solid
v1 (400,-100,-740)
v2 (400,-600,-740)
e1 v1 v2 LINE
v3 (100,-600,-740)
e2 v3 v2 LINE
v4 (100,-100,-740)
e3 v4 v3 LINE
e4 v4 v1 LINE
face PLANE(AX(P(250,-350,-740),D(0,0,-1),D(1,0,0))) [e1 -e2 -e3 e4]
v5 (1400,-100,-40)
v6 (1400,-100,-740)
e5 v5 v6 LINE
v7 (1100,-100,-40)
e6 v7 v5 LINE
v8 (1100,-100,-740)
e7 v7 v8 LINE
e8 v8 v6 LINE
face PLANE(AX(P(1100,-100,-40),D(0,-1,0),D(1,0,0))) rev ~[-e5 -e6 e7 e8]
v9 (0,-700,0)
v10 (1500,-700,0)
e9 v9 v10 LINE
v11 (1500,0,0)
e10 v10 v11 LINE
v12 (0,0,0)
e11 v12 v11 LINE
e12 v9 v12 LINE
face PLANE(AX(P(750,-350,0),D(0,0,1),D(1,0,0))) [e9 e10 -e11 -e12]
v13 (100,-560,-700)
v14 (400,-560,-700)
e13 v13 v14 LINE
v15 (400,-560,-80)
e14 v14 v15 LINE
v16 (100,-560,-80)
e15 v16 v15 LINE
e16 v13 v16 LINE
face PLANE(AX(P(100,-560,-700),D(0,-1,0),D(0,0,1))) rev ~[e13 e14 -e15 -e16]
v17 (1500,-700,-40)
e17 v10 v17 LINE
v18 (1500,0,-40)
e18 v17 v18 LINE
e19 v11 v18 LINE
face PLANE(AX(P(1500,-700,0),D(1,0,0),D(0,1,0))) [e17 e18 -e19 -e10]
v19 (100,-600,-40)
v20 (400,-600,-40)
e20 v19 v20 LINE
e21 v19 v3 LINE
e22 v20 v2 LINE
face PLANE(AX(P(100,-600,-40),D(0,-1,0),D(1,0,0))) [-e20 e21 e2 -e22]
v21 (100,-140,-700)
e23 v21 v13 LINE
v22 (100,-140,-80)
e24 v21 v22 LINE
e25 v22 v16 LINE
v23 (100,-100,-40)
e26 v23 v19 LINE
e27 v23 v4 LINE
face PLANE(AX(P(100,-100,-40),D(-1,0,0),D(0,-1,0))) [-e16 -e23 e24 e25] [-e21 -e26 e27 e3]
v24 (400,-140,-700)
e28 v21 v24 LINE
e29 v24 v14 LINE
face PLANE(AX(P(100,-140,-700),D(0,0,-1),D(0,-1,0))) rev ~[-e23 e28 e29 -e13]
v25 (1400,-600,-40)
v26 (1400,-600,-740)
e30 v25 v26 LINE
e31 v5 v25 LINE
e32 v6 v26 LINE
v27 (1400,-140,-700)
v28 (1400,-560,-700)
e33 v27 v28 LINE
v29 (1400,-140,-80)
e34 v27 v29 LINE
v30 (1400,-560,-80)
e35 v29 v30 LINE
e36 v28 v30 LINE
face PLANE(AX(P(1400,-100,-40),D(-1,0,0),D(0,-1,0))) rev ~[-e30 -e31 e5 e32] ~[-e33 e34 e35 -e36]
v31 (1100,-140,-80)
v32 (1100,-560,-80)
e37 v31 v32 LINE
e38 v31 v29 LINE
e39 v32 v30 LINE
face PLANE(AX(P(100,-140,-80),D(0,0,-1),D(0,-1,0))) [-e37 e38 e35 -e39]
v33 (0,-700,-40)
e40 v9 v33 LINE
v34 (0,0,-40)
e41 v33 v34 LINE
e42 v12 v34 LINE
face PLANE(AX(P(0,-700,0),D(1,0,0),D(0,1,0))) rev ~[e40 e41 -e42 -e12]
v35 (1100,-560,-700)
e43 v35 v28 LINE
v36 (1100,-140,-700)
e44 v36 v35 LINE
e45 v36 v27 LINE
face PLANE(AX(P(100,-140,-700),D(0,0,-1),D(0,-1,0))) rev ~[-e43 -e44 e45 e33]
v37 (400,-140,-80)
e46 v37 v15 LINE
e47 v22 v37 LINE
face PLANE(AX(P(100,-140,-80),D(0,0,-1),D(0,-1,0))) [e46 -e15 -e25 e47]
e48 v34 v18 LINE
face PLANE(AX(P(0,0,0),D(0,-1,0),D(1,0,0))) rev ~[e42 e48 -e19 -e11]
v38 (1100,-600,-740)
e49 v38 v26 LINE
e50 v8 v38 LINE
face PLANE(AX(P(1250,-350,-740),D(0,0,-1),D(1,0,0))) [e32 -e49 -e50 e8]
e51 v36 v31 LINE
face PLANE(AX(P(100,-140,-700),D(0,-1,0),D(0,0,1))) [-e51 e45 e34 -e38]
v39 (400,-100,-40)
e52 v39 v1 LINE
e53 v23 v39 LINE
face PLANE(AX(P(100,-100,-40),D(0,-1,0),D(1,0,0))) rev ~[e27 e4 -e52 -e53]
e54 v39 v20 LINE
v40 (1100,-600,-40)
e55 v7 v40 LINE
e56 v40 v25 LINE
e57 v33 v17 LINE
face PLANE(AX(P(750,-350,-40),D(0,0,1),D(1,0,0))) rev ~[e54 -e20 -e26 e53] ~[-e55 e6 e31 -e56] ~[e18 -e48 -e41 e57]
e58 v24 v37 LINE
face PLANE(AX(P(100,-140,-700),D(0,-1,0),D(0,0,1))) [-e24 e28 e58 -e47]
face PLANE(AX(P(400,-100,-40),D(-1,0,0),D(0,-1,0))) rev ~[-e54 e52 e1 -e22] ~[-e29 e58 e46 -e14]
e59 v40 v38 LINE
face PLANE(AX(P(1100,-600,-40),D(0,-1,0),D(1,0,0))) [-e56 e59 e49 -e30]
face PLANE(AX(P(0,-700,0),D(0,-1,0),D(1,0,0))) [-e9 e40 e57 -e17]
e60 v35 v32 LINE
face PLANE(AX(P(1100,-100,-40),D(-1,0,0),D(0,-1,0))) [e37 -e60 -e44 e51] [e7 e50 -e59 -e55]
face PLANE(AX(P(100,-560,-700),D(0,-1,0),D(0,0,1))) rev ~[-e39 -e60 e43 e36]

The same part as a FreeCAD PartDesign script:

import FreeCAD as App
import Part
import Sketcher

V = App.Vector

doc = App.newDocument("Part")
params = doc.addObject("Spreadsheet::Sheet", "Params")
for row, (alias, value) in enumerate([
    ("sketch1_width", "1500 mm"),
    ("sketch1_height", "700 mm"),
    ("pad1_length", "40 mm"),
    ("sketch2_width", "300 mm"),
    ("sketch2_height", "500 mm"),
    ("pad2_length", "700 mm"),
    ("sketch3_width", "420 mm"),
    ("sketch3_height", "620 mm"),
    ("pocket1_length", "1328 mm"),
], start=1):
    params.set(f"A{row}", alias)
    params.set(f"B{row}", "=" + value)
    params.setAlias(f"B{row}", alias)

body = doc.addObject("PartDesign::Body", "Body")

# Sketch on XY plane
sketch1 = doc.addObject("Sketcher::SketchObject", "Sketch")
body.addObject(sketch1)
sketch1.AttachmentSupport = (doc.XY_Plane, [""])
sketch1.MapMode = "FlatFace"
sketch1.addGeometry(Part.LineSegment(V(0, 0, 0), V(0, -700, 0)), False)
sketch1.addGeometry(Part.LineSegment(V(0, -700, 0), V(1500, -700, 0)), False)
sketch1.addGeometry(Part.LineSegment(V(1500, -700, 0), V(1500, 0, 0)), False)
sketch1.addGeometry(Part.LineSegment(V(1500, 0, 0), V(0, 0, 0)), False)
sketch1.addConstraint(Sketcher.Constraint("Coincident", 0, 2, 1, 1))
sketch1.addConstraint(Sketcher.Constraint("Coincident", 1, 2, 2, 1))
sketch1.addConstraint(Sketcher.Constraint("Coincident", 2, 2, 3, 1))
sketch1.addConstraint(Sketcher.Constraint("Coincident", 3, 2, 0, 1))
sketch1.addConstraint(Sketcher.Constraint("Vertical", 0))
sketch1.addConstraint(Sketcher.Constraint("Horizontal", 1))
sketch1.addConstraint(Sketcher.Constraint("Vertical", 2))
sketch1.addConstraint(Sketcher.Constraint("Horizontal", 3))
sketch1.addConstraint(Sketcher.Constraint("Coincident", 3, 2, -1, 1))
sketch1.addConstraint(Sketcher.Constraint("DistanceX", 1, 1, 1, 2, 1500.0))
sketch1.addConstraint(Sketcher.Constraint("DistanceY", 0, 2, 0, 1, 700.0))
sketch1.setExpression("Constraints[9]", "Params.sketch1_width")
sketch1.setExpression("Constraints[10]", "Params.sketch1_height")
pad1 = doc.addObject("PartDesign::Pad", "Pad")
body.addObject(pad1)
pad1.Profile = sketch1
pad1.setExpression("Length", "Params.pad1_length")
pad1.Reversed = True

# Sketch on XY plane
sketch2 = doc.addObject("Sketcher::SketchObject", "Sketch001")
body.addObject(sketch2)
sketch2.AttachmentSupport = (doc.XY_Plane, [""])
sketch2.MapMode = "FlatFace"
sketch2.AttachmentOffset = App.Placement(V(0, 0, -40), App.Rotation())
sketch2.addGeometry(Part.LineSegment(V(100, -600, 0), V(100, -100, 0)), False)
sketch2.addGeometry(Part.LineSegment(V(100, -100, 0), V(400, -100, 0)), False)
sketch2.addGeometry(Part.LineSegment(V(400, -100, 0), V(400, -600, 0)), False)
sketch2.addGeometry(Part.LineSegment(V(400, -600, 0), V(100, -600, 0)), False)
sketch2.addGeometry(Part.LineSegment(V(1100, -600, 0), V(1100, -100, 0)), False)
sketch2.addGeometry(Part.LineSegment(V(1100, -100, 0), V(1400, -100, 0)), False)
sketch2.addGeometry(Part.LineSegment(V(1400, -100, 0), V(1400, -600, 0)), False)
sketch2.addGeometry(Part.LineSegment(V(1400, -600, 0), V(1100, -600, 0)), False)
sketch2.addConstraint(Sketcher.Constraint("Coincident", 0, 2, 1, 1))
sketch2.addConstraint(Sketcher.Constraint("Coincident", 1, 2, 2, 1))
sketch2.addConstraint(Sketcher.Constraint("Coincident", 2, 2, 3, 1))
sketch2.addConstraint(Sketcher.Constraint("Coincident", 3, 2, 0, 1))
sketch2.addConstraint(Sketcher.Constraint("Coincident", 4, 2, 5, 1))
sketch2.addConstraint(Sketcher.Constraint("Coincident", 5, 2, 6, 1))
sketch2.addConstraint(Sketcher.Constraint("Coincident", 6, 2, 7, 1))
sketch2.addConstraint(Sketcher.Constraint("Coincident", 7, 2, 4, 1))
sketch2.addConstraint(Sketcher.Constraint("Vertical", 0))
sketch2.addConstraint(Sketcher.Constraint("Horizontal", 1))
sketch2.addConstraint(Sketcher.Constraint("Vertical", 2))
sketch2.addConstraint(Sketcher.Constraint("Horizontal", 3))
sketch2.addConstraint(Sketcher.Constraint("Vertical", 4))
sketch2.addConstraint(Sketcher.Constraint("Horizontal", 5))
sketch2.addConstraint(Sketcher.Constraint("Vertical", 6))
sketch2.addConstraint(Sketcher.Constraint("Horizontal", 7))
sketch2.addConstraint(Sketcher.Constraint("Horizontal", 1, 2, 4, 2))
sketch2.addConstraint(Sketcher.Constraint("Horizontal", 3, 2, 6, 2))
sketch2.addConstraint(Sketcher.Constraint("Equal", 3, 5))
sketch2.addConstraint(Sketcher.Constraint("DistanceX", 1, 1, 1, 2, 300.0))
sketch2.addConstraint(Sketcher.Constraint("DistanceY", 0, 1, 0, 2, 500.0))
sketch2.addConstraint(Sketcher.Constraint("DistanceX", -1, 1, 0, 2, 100.0))
sketch2.addConstraint(Sketcher.Constraint("DistanceY", 0, 2, -1, 1, 100.0))
sketch2.addConstraint(Sketcher.Constraint("DistanceX", -1, 1, 4, 2, 1100.0))
sketch2.setExpression("Constraints[19]", "Params.sketch2_width")
sketch2.setExpression("Constraints[20]", "Params.sketch2_height")
pad2 = doc.addObject("PartDesign::Pad", "Pad001")
body.addObject(pad2)
pad2.Profile = sketch2
pad2.setExpression("Length", "Params.pad2_length")
pad2.Reversed = True

# Sketch on YZ plane
sketch3 = doc.addObject("Sketcher::SketchObject", "Sketch002")
body.addObject(sketch3)
sketch3.AttachmentSupport = (doc.YZ_Plane, [""])
sketch3.MapMode = "FlatFace"
sketch3.AttachmentOffset = App.Placement(V(0, 0, 100), App.Rotation())
sketch3.addGeometry(Part.LineSegment(V(-140, -80, 0), V(-140, -700, 0)), False)
sketch3.addGeometry(Part.LineSegment(V(-140, -700, 0), V(-560, -700, 0)), False)
sketch3.addGeometry(Part.LineSegment(V(-560, -700, 0), V(-560, -80, 0)), False)
sketch3.addGeometry(Part.LineSegment(V(-560, -80, 0), V(-140, -80, 0)), False)
sketch3.addConstraint(Sketcher.Constraint("Coincident", 0, 2, 1, 1))
sketch3.addConstraint(Sketcher.Constraint("Coincident", 1, 2, 2, 1))
sketch3.addConstraint(Sketcher.Constraint("Coincident", 2, 2, 3, 1))
sketch3.addConstraint(Sketcher.Constraint("Coincident", 3, 2, 0, 1))
sketch3.addConstraint(Sketcher.Constraint("Vertical", 0))
sketch3.addConstraint(Sketcher.Constraint("Horizontal", 1))
sketch3.addConstraint(Sketcher.Constraint("Vertical", 2))
sketch3.addConstraint(Sketcher.Constraint("Horizontal", 3))
sketch3.addConstraint(Sketcher.Constraint("DistanceX", 1, 2, 1, 1, 420.0))
sketch3.addConstraint(Sketcher.Constraint("DistanceY", 0, 2, 0, 1, 620.0))
sketch3.addConstraint(Sketcher.Constraint("DistanceX", 0, 2, -1, 1, 140.0))
sketch3.addConstraint(Sketcher.Constraint("DistanceY", 0, 2, -1, 1, 700.0))
sketch3.setExpression("Constraints[8]", "Params.sketch3_width")
sketch3.setExpression("Constraints[9]", "Params.sketch3_height")
pocket1 = doc.addObject("PartDesign::Pocket", "Pocket")
body.addObject(pocket1)
pocket1.Profile = sketch3
pocket1.setExpression("Length", "Params.pocket1_length")
pocket1.Reversed = True

doc.recompute()
